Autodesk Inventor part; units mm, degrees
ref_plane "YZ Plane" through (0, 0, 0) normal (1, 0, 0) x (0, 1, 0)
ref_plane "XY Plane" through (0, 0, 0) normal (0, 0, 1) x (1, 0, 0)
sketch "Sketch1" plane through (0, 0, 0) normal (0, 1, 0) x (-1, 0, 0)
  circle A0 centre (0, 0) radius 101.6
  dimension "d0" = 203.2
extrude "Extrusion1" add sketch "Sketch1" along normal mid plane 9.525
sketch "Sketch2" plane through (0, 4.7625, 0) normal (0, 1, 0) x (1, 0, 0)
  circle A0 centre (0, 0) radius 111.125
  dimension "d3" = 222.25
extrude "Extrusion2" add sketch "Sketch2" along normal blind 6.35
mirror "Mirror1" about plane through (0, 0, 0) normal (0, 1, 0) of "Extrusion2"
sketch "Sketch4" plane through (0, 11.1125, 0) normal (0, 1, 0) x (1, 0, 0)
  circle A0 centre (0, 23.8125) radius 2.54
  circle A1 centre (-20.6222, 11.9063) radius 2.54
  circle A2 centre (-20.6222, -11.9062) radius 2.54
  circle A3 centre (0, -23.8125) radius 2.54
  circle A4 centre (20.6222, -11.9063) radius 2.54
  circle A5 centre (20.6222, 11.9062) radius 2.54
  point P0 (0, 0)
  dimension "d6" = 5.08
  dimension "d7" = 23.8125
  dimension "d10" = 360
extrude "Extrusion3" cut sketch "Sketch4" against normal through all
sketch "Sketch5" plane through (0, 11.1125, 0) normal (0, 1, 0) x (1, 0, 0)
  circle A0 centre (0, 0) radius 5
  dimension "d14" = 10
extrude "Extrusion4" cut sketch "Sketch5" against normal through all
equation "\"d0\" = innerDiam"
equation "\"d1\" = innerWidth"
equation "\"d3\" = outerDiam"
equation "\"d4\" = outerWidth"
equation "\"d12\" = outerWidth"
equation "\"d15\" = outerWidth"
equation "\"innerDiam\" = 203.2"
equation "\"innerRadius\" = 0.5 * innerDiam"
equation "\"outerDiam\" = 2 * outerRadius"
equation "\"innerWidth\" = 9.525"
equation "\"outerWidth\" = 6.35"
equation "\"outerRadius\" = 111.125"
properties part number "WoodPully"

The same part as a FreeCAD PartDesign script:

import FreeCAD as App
import Part
import Sketcher
Q = App.Units.Quantity

doc = App.newDocument("Part")
body = doc.addObject("PartDesign::Body", "Body")

sketch1 = doc.addObject("Sketcher::SketchObject", "Sketch")
body.addObject(sketch1)
sketch1.AttachmentSupport = (doc.XZ_Plane, [""])
sketch1.MapMode = "FlatFace"
sketch1.addGeometry(Part.Circle(App.Vector(0, 0, 0), App.Vector(0, 0, 1), 101.6), False)
sketch1.addConstraint(Sketcher.Constraint("Coincident", 0, 3, -1, 1))
sketch1.addConstraint(Sketcher.Constraint("Diameter", 0, Q("8 in")))
pad1 = doc.addObject("PartDesign::Pad", "Pad")
body.addObject(pad1)
pad1.Profile = sketch1
pad1.Length = Q("0.375 in")
pad1.Midplane = True

sketch2 = doc.addObject("Sketcher::SketchObject", "Sketch001")
body.addObject(sketch2)
sketch2.AttachmentSupport = (doc.XZ_Plane, [""])
sketch2.MapMode = "FlatFace"
sketch2.AttachmentOffset = App.Placement(App.Vector(0, 0, -0.1875 * 25.4), App.Rotation())
sketch2.addGeometry(Part.Circle(App.Vector(0, 0, 0), App.Vector(0, 0, 1), 111.125), False)
sketch2.addConstraint(Sketcher.Constraint("Coincident", 0, 3, -1, 1))
sketch2.addConstraint(Sketcher.Constraint("Diameter", 0, Q("8.75 in")))
pad2 = doc.addObject("PartDesign::Pad", "Pad001")
body.addObject(pad2)
pad2.Profile = sketch2
pad2.Length = Q("0.25 in")
pad2.Reversed = True
doc.recompute()

mirrored = doc.addObject("PartDesign::Mirrored", "Mirrored")
body.addObject(mirrored)
mirrored.Originals = [pad2]
mirrored.MirrorPlane = (doc.XZ_Plane, [""])
body.Tip = mirrored

sketch3 = doc.addObject("Sketcher::SketchObject", "Sketch002")
body.addObject(sketch3)
sketch3.AttachmentSupport = (doc.XZ_Plane, [""])
sketch3.MapMode = "FlatFace"
sketch3.AttachmentOffset = App.Placement(App.Vector(0, 0, -0.4375 * 25.4), App.Rotation())
sketch3.addGeometry(Part.Circle(App.Vector(0, -23.8125, 0), App.Vector(0, 0, 1), 2.54), False)
sketch3.addGeometry(Part.Circle(App.Vector(-20.6222, -11.9063, 0), App.Vector(0, 0, 1), 2.54), False)
sketch3.addGeometry(Part.Circle(App.Vector(-20.6222, 11.9062, 0), App.Vector(0, 0, 1), 2.54), False)
sketch3.addGeometry(Part.Circle(App.Vector(0, 23.8125, 0), App.Vector(0, 0, 1), 2.54), False)
sketch3.addGeometry(Part.Circle(App.Vector(20.6222, 11.9063, 0), App.Vector(0, 0, 1), 2.54), False)
sketch3.addGeometry(Part.Circle(App.Vector(20.6222, -11.9062, 0), App.Vector(0, 0, 1), 2.54), False)
sketch3.addConstraint(Sketcher.Constraint("Equal", 0, 1))
sketch3.addConstraint(Sketcher.Constraint("Equal", 1, 2))
sketch3.addConstraint(Sketcher.Constraint("Equal", 2, 3))
sketch3.addConstraint(Sketcher.Constraint("Equal", 3, 4))
sketch3.addConstraint(Sketcher.Constraint("Equal", 4, 5))
sketch3.addConstraint(Sketcher.Constraint("Symmetric", 0, 3, 3, 3, -1, 1))
sketch3.addConstraint(Sketcher.Constraint("Symmetric", 1, 3, 4, 3, -1, 1))
sketch3.addConstraint(Sketcher.Constraint("Symmetric", 2, 3, 5, 3, -1, 1))
sketch3.addConstraint(Sketcher.Constraint("Symmetric", 2, 3, 4, 3, -2))
sketch3.addConstraint(Sketcher.Constraint("PointOnObject", 0, 3, -2))
sketch3.addConstraint(Sketcher.Constraint("Diameter", 0, Q("0.2 in")))
sketch3.addConstraint(Sketcher.Constraint("DistanceY", 0, 3, -1, 1, Q("0.9375 in")))
sketch3.addConstraint(Sketcher.Constraint("DistanceY", 1, 3, 2, 3, Q("0.9375 in")))
sketch3.addConstraint(Sketcher.Constraint("DistanceX", 1, 3, -1, 1, Q("0.8119 in")))
pocket1 = doc.addObject("PartDesign::Pocket", "Pocket")
body.addObject(pocket1)
pocket1.Profile = sketch3
pocket1.Type = "ThroughAll"
pocket1.Reversed = True

sketch4 = doc.addObject("Sketcher::SketchObject", "Sketch003")
body.addObject(sketch4)
sketch4.AttachmentSupport = (doc.XZ_Plane, [""])
sketch4.MapMode = "FlatFace"
sketch4.AttachmentOffset = App.Placement(App.Vector(0, 0, -0.4375 * 25.4), App.Rotation())
sketch4.addGeometry(Part.Circle(App.Vector(0, 0, 0), App.Vector(0, 0, 1), 5), False)
sketch4.addConstraint(Sketcher.Constraint("Coincident", 0, 3, -1, 1))
sketch4.addConstraint(Sketcher.Constraint("Diameter", 0, Q("0.3937 in")))
pocket2 = doc.addObject("PartDesign::Pocket", "Pocket001")
body.addObject(pocket2)
pocket2.Profile = sketch4
pocket2.Type = "ThroughAll"
pocket2.Reversed = True

doc.recompute()
